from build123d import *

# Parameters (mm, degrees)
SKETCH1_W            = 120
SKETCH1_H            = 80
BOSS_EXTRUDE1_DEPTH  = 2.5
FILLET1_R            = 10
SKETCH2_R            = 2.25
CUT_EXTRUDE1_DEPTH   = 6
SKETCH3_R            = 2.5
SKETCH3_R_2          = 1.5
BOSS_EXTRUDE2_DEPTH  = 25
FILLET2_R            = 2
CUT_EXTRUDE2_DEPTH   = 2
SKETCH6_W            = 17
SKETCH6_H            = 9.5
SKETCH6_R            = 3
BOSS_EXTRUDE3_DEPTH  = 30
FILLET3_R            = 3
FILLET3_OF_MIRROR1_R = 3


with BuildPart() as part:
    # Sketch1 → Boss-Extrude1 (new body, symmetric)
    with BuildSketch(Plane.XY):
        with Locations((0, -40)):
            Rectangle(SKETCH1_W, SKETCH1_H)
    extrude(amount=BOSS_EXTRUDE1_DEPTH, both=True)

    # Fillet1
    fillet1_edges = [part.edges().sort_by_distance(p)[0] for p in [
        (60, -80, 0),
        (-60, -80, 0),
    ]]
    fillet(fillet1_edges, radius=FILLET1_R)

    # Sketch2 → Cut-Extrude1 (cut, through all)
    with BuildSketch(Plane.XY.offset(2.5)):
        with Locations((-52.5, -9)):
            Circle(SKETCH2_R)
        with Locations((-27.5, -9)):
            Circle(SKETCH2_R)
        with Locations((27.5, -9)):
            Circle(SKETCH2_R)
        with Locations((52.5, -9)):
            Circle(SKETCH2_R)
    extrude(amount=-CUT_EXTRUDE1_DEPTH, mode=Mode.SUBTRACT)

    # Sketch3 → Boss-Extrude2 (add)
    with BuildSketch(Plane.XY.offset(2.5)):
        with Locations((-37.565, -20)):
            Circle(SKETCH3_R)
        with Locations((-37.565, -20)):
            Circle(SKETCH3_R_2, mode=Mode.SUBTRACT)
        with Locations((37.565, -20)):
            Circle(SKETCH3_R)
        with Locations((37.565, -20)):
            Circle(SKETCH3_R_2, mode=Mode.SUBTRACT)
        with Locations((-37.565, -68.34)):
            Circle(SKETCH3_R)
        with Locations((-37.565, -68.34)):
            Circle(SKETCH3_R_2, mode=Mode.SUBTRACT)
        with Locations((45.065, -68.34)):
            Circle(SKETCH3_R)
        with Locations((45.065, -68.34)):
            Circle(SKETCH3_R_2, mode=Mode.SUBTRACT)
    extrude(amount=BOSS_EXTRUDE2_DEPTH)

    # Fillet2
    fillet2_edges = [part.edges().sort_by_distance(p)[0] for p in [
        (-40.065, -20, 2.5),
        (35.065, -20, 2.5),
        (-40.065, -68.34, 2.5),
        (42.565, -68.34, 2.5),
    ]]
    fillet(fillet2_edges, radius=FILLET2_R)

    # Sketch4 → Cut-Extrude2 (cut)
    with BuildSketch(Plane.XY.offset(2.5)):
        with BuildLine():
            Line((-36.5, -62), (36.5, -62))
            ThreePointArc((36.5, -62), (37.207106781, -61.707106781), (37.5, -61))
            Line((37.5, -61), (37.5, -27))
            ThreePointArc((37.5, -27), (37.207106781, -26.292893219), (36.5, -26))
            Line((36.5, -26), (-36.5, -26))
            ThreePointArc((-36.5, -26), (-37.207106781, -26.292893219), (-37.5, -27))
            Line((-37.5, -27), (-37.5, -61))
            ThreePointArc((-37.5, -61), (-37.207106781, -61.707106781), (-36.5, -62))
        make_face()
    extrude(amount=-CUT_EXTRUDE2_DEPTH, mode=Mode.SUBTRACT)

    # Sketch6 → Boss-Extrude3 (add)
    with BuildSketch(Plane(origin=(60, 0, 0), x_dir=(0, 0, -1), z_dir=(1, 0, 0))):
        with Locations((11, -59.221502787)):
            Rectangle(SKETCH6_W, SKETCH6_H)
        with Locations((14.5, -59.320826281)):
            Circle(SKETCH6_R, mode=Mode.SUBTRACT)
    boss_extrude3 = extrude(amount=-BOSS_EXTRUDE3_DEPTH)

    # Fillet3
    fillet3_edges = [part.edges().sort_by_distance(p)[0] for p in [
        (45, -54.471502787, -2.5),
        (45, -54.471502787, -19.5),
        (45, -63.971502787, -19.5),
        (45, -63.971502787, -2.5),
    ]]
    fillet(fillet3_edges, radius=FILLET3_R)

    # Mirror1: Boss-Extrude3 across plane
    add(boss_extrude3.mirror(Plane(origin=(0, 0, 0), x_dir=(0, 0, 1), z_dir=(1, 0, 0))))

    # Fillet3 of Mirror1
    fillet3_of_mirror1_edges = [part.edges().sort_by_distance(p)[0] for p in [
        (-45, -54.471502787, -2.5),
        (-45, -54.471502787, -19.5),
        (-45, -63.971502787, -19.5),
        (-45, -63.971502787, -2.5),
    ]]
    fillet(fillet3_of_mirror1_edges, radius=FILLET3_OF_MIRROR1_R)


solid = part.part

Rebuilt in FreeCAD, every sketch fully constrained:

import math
import FreeCAD as App
import Part
import Sketcher
Q = App.Units.Quantity


def edges_at(feature, points):
    """Names of the edges that pass closest to the given points."""
    edges = feature.Shape.Edges
    near = lambda p: min(range(len(edges)), key=lambda i: edges[i].distToShape(Part.Vertex(*p))[0])
    return sorted({f"Edge{near(p) + 1}" for p in points})


def add_polygon(sketch, points):
    """Adds a closed chain of lines whose ends are joined by coincident constraints."""
    first, n = sketch.GeometryCount, len(points)
    for a, b in zip(points, points[1:] + points[:1]):
        sketch.addGeometry(Part.LineSegment(App.Vector(*a, 0), App.Vector(*b, 0)), False)
    for i in range(n):
        sketch.addConstraint(Sketcher.Constraint("Coincident", first + i, 2, first + (i + 1) % n, 1))

doc = App.newDocument("Part")
body = doc.addObject("PartDesign::Body", "Body")

sketch1 = doc.addObject("Sketcher::SketchObject", "Sketch")
body.addObject(sketch1)
sketch1.AttachmentSupport = (doc.XY_Plane, [""])
sketch1.MapMode = "FlatFace"
add_polygon(sketch1, [(-60, 0), (-60, -80), (60, -80), (60, 0)])
sketch1.addConstraint([
    Sketcher.Constraint("Vertical", 0),
    Sketcher.Constraint("Horizontal", 1),
    Sketcher.Constraint("Vertical", 2),
    Sketcher.Constraint("Horizontal", 3),
    Sketcher.Constraint("Symmetric", 2, 2, 3, 2, -1, 1),
    Sketcher.Constraint("DistanceX", 1, 1, 1, 2, Q("120 mm")),
    Sketcher.Constraint("DistanceY", 0, 2, 0, 1, Q("80 mm")),
])
pad1 = doc.addObject("PartDesign::Pad", "Pad")
body.addObject(pad1)
pad1.Profile = sketch1
pad1.Length = 5
pad1.Midplane = True
doc.recompute()

fillet = doc.addObject("PartDesign::Fillet", "Fillet")
body.addObject(fillet)
fillet.Base = (pad1, edges_at(pad1, [(60, -80, 0), (-60, -80, 0)]))
fillet.Radius = 10

sketch2 = doc.addObject("Sketcher::SketchObject", "Sketch001")
body.addObject(sketch2)
sketch2.AttachmentSupport = (doc.XY_Plane, [""])
sketch2.MapMode = "FlatFace"
sketch2.AttachmentOffset = App.Placement(App.Vector(0, 0, 2.5), App.Rotation())
sketch2.addGeometry([
    Part.Circle(App.Vector(-52.5, -9, 0), App.Vector(0, 0, 1), 2.2),
    Part.Circle(App.Vector(-27.5, -9, 0), App.Vector(0, 0, 1), 2.2),
    Part.Circle(App.Vector(27.5, -9, 0), App.Vector(0, 0, 1), 2.2),
    Part.Circle(App.Vector(52.5, -9, 0), App.Vector(0, 0, 1), 2.2),
], False)
sketch2.addConstraint([
    Sketcher.Constraint("Equal", 0, 1),
    Sketcher.Constraint("Equal", 1, 2),
    Sketcher.Constraint("Equal", 2, 3),
    Sketcher.Constraint("Symmetric", 1, 3, 2, 3, -2),
    Sketcher.Constraint("Symmetric", 0, 3, 3, 3, -2),
    Sketcher.Constraint("Horizontal", 0, 3, 1, 3),
    Sketcher.Constraint("Diameter", 0, Q("4.5 mm")),
    Sketcher.Constraint("DistanceY", 0, 3, -1, 1, Q("9 mm")),
    Sketcher.Constraint("DistanceX", 0, 3, 1, 3, Q("25 mm")),
    Sketcher.Constraint("DistanceX", 1, 3, 2, 3, Q("55 mm")),
])
pocket1 = doc.addObject("PartDesign::Pocket", "Pocket")
body.addObject(pocket1)
pocket1.Profile = sketch2
pocket1.Type = "ThroughAll"

sketch3 = doc.addObject("Sketcher::SketchObject", "Sketch002")
body.addObject(sketch3)
sketch3.AttachmentSupport = (doc.XY_Plane, [""])
sketch3.MapMode = "FlatFace"
sketch3.AttachmentOffset = App.Placement(App.Vector(0, 0, 2.5), App.Rotation())
sketch3.addGeometry([
    Part.Circle(App.Vector(-37.6, -20, 0), App.Vector(0, 0, 1), 2.5),
    Part.Circle(App.Vector(-37.6, -20, 0), App.Vector(0, 0, 1), 1.5),
    Part.Circle(App.Vector(37.6, -20, 0), App.Vector(0, 0, 1), 2.5),
    Part.Circle(App.Vector(37.6, -20, 0), App.Vector(0, 0, 1), 1.5),
    Part.Circle(App.Vector(-37.6, -68.3, 0), App.Vector(0, 0, 1), 2.5),
    Part.Circle(App.Vector(-37.6, -68.3, 0), App.Vector(0, 0, 1), 1.5),
    Part.Circle(App.Vector(45.1, -68.3, 0), App.Vector(0, 0, 1), 2.5),
    Part.Circle(App.Vector(45.1, -68.3, 0), App.Vector(0, 0, 1), 1.5),
], False)
sketch3.addConstraint([
    Sketcher.Constraint("Coincident", 1, 3, 0, 3),
    Sketcher.Constraint("Coincident", 3, 3, 2, 3),
    Sketcher.Constraint("Coincident", 5, 3, 4, 3),
    Sketcher.Constraint("Coincident", 7, 3, 6, 3),
    Sketcher.Constraint("Equal", 0, 2),
    Sketcher.Constraint("Equal", 1, 3),
    Sketcher.Constraint("Equal", 2, 4),
    Sketcher.Constraint("Equal", 3, 5),
    Sketcher.Constraint("Equal", 4, 6),
    Sketcher.Constraint("Equal", 5, 7),
    Sketcher.Constraint("Symmetric", 0, 3, 2, 3, -2),
    Sketcher.Constraint("Horizontal", 5, 3, 6, 3),
    Sketcher.Constraint("Vertical", 1, 3, 4, 3),
    Sketcher.Constraint("Diameter", 0, Q("5 mm")),
    Sketcher.Constraint("Diameter", 1, Q("3 mm")),
    Sketcher.Constraint("DistanceY", 0, 3, -1, 1, Q("20 mm")),
    Sketcher.Constraint("DistanceX", 2, 3, 6, 3, Q("7.5 mm")),
    Sketcher.Constraint("DistanceY", 4, 3, -1, 1, Q("68.34 mm")),
    Sketcher.Constraint("DistanceX", 0, 3, 2, 3, Q("75.13 mm")),
])
pad2 = doc.addObject("PartDesign::Pad", "Pad001")
body.addObject(pad2)
pad2.Profile = sketch3
pad2.Length = 25
doc.recompute()

fillet2 = doc.addObject("PartDesign::Fillet", "Fillet001")
body.addObject(fillet2)
fillet2.Base = (pad2, edges_at(pad2, [
    (-40.065, -20, 2.5),
    (35.065, -20, 2.5),
    (-40.065, -68.34, 2.5),
    (42.565, -68.34, 2.5),
]))
fillet2.Radius = 2

sketch4 = doc.addObject("Sketcher::SketchObject", "Sketch003")
body.addObject(sketch4)
sketch4.AttachmentSupport = (doc.XY_Plane, [""])
sketch4.MapMode = "FlatFace"
sketch4.AttachmentOffset = App.Placement(App.Vector(0, 0, 2.5), App.Rotation())
sketch4.addGeometry([
    Part.LineSegment(App.Vector(-36.5, -62, 0), App.Vector(36.5, -62, 0)),
    Part.ArcOfCircle(Part.Circle(App.Vector(36.5, -61, 0), App.Vector(0, 0, 1), 1), math.radians(-90), math.radians(0)),
    Part.LineSegment(App.Vector(37.5, -61, 0), App.Vector(37.5, -27, 0)),
    Part.ArcOfCircle(Part.Circle(App.Vector(36.5, -27, 0), App.Vector(0, 0, 1), 1), math.radians(0), math.radians(90)),
    Part.LineSegment(App.Vector(36.5, -26, 0), App.Vector(-36.5, -26, 0)),
    Part.ArcOfCircle(Part.Circle(App.Vector(-36.5, -27, 0), App.Vector(0, 0, 1), 1), math.radians(90), math.radians(180)),
    Part.LineSegment(App.Vector(-37.5, -27, 0), App.Vector(-37.5, -61, 0)),
    Part.ArcOfCircle(Part.Circle(App.Vector(-36.5, -61, 0), App.Vector(0, 0, 1), 1), math.radians(-180), math.radians(-90)),
], False)
sketch4.addConstraint([
    Sketcher.Constraint("Tangent", 0, 2, 1, 1),
    Sketcher.Constraint("Tangent", 1, 2, 2, 1),
    Sketcher.Constraint("Tangent", 2, 2, 3, 1),
    Sketcher.Constraint("Tangent", 3, 2, 4, 1),
    Sketcher.Constraint("Tangent", 4, 2, 5, 1),
    Sketcher.Constraint("Tangent", 5, 2, 6, 1),
    Sketcher.Constraint("Tangent", 6, 2, 7, 1),
    Sketcher.Constraint("Tangent", 7, 2, 0, 1),
    Sketcher.Constraint("Horizontal", 0),
    Sketcher.Constraint("Vertical", 2),
    Sketcher.Constraint("Horizontal", 4),
    Sketcher.Constraint("Vertical", 6),
    Sketcher.Constraint("Equal", 1, 3),
    Sketcher.Constraint("Equal", 3, 5),
    Sketcher.Constraint("Equal", 5, 7),
    Sketcher.Constraint("Radius", 1, Q("1 mm")),
    Sketcher.Constraint("DistanceX", 0, 1, 0, 2, Q("73 mm")),
    Sketcher.Constraint("DistanceY", 2, 1, 2, 2, Q("34 mm")),
    Sketcher.Constraint("DistanceY", 1, 3, -1, 1, Q("61 mm")),
    Sketcher.Constraint("DistanceX", -1, 1, 1, 3, Q("36.5 mm")),
])
pocket2 = doc.addObject("PartDesign::Pocket", "Pocket001")
body.addObject(pocket2)
pocket2.Profile = sketch4
pocket2.Length = 2

sketch5 = doc.addObject("Sketcher::SketchObject", "Sketch004")
body.addObject(sketch5)
sketch5.AttachmentSupport = (doc.YZ_Plane, [""])
sketch5.MapMode = "FlatFace"
sketch5.AttachmentOffset = App.Placement(App.Vector(0, 0, 60), App.Rotation())
add_polygon(sketch5, [(-54.5, -2.5), (-64, -2.5), (-64, -19.5), (-54.5, -19.5)])
sketch5.addGeometry(Part.Circle(App.Vector(-59.3, -14.5, 0), App.Vector(0, 0, 1), 3), False)
sketch5.addConstraint([
    Sketcher.Constraint("Horizontal", 0),
    Sketcher.Constraint("Vertical", 1),
    Sketcher.Constraint("Horizontal", 2),
    Sketcher.Constraint("Vertical", 3),
    Sketcher.Constraint("Diameter", 4, Q("6 mm")),
    Sketcher.Constraint("DistanceY", 1, 2, 1, 1, Q("17 mm")),
    Sketcher.Constraint("DistanceX", 0, 2, 0, 1, Q("9.5 mm")),
    Sketcher.Constraint("DistanceY", 4, 3, 0, 2, Q("12 mm")),
    Sketcher.Constraint("DistanceY", 4, 3, -1, 1, Q("14.5 mm")),
    Sketcher.Constraint("DistanceX", 4, 3, -1, 1, Q("59.320826 mm")),
    Sketcher.Constraint("DistanceX", 0, 2, -1, 1, Q("63.971503 mm")),
])
pad3 = doc.addObject("PartDesign::Pad", "Pad002")
body.addObject(pad3)
pad3.Profile = sketch5
pad3.Length = 30
pad3.Reversed = True
doc.recompute()

fillet3 = doc.addObject("PartDesign::Fillet", "Fillet002")
body.addObject(fillet3)
fillet3.Base = (pad3, edges_at(pad3, [
    (45, -54.472, -2.5),
    (45, -54.472, -19.5),
    (45, -63.972, -19.5),
    (45, -63.972, -2.5),
]))
fillet3.Radius = 3
doc.recompute()

mirrored = doc.addObject("PartDesign::Mirrored", "Mirrored")
body.addObject(mirrored)
mirrored.Originals = [pad3]
mirrored.MirrorPlane = (doc.YZ_Plane, [""])
body.Tip = mirrored
doc.recompute()

fillet4 = doc.addObject("PartDesign::Fillet", "Fillet003")
body.addObject(fillet4)
fillet4.Base = (mirrored, edges_at(mirrored, [
    (-45, -54.472, -2.5),
    (-45, -54.472, -19.5),
    (-45, -63.972, -19.5),
    (-45, -63.972, -2.5),
]))
fillet4.Radius = 3

doc.recompute()
